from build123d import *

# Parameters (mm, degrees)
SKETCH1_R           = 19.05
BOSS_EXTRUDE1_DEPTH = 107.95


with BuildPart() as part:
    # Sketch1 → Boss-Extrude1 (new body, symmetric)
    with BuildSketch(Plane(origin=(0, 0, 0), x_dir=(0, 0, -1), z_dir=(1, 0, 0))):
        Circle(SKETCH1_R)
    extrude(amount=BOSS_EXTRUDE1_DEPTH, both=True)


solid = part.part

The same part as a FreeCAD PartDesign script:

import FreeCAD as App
import Part
import Sketcher
Q = App.Units.Quantity

doc = App.newDocument("Part")
body = doc.addObject("PartDesign::Body", "Body")

sketch1 = body.newObject("Sketcher::SketchObject", "Sketch")
sketch1.AttachmentSupport = (doc.getObject("YZ_Plane"), [""])
sketch1.MapMode = "FlatFace"
sketch1.addGeometry(Part.Circle(App.Vector(0, 0, 0), App.Vector(0, 0, 1), 19), False)
sketch1.addConstraint([
    Sketcher.Constraint("Coincident", 0, 3, -1, 1),
    Sketcher.Constraint("Diameter", 0, Q("1.5 in")),
])
pad1 = body.newObject("PartDesign::Pad", "Pad")
pad1.Profile = sketch1
pad1.Length = Q("8.5 in")
pad1.Midplane = True

doc.recompute()
